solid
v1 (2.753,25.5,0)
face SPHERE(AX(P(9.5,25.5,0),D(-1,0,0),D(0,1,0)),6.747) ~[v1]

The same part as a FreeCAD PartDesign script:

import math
import FreeCAD as App
import Part
import Sketcher

V = App.Vector

doc = App.newDocument("Part")
body = doc.addObject("PartDesign::Body", "Body")

# Sketch on XY plane
sketch1 = doc.addObject("Sketcher::SketchObject", "Sketch")
body.addObject(sketch1)
sketch1.AttachmentSupport = (doc.XY_Plane, [""])
sketch1.MapMode = "FlatFace"
sketch1.addGeometry([
    Part.LineSegment(V(3, 26, 0), V(16, 26, 0)),
    Part.ArcOfCircle(Part.Circle(V(10, 26, 0), V(0, 0, 1), 7), math.radians(0), math.radians(180)),
], False)
sketch1.addGeometry(Part.LineSegment(V(3, 26, 0), V(16, 26, 0)), True)  # axis
sketch1.addConstraint([
    Sketcher.Constraint("Coincident", 0, 1, 1, 2),
    Sketcher.Constraint("Coincident", 1, 1, 0, 2),
    Sketcher.Constraint("Horizontal", 0),
    Sketcher.Constraint("Horizontal", 2),
    Sketcher.Constraint("Coincident", 2, 1, 0, 1),
    Sketcher.Constraint("Horizontal", 1, 3, 0, 1),
    Sketcher.Constraint("Equal", 0, 2),
    Sketcher.Constraint("Radius", 1, 6.747),
    Sketcher.Constraint("DistanceX", -1, 1, 1, 3, 9.5),
    Sketcher.Constraint("DistanceY", -1, 1, 1, 3, 25.5),
])
revolution = doc.addObject("PartDesign::Revolution", "Revolution")
body.addObject(revolution)
revolution.Profile = sketch1
revolution.ReferenceAxis = (sketch1, ["Axis0"])
revolution.Angle = 360

doc.recompute()
